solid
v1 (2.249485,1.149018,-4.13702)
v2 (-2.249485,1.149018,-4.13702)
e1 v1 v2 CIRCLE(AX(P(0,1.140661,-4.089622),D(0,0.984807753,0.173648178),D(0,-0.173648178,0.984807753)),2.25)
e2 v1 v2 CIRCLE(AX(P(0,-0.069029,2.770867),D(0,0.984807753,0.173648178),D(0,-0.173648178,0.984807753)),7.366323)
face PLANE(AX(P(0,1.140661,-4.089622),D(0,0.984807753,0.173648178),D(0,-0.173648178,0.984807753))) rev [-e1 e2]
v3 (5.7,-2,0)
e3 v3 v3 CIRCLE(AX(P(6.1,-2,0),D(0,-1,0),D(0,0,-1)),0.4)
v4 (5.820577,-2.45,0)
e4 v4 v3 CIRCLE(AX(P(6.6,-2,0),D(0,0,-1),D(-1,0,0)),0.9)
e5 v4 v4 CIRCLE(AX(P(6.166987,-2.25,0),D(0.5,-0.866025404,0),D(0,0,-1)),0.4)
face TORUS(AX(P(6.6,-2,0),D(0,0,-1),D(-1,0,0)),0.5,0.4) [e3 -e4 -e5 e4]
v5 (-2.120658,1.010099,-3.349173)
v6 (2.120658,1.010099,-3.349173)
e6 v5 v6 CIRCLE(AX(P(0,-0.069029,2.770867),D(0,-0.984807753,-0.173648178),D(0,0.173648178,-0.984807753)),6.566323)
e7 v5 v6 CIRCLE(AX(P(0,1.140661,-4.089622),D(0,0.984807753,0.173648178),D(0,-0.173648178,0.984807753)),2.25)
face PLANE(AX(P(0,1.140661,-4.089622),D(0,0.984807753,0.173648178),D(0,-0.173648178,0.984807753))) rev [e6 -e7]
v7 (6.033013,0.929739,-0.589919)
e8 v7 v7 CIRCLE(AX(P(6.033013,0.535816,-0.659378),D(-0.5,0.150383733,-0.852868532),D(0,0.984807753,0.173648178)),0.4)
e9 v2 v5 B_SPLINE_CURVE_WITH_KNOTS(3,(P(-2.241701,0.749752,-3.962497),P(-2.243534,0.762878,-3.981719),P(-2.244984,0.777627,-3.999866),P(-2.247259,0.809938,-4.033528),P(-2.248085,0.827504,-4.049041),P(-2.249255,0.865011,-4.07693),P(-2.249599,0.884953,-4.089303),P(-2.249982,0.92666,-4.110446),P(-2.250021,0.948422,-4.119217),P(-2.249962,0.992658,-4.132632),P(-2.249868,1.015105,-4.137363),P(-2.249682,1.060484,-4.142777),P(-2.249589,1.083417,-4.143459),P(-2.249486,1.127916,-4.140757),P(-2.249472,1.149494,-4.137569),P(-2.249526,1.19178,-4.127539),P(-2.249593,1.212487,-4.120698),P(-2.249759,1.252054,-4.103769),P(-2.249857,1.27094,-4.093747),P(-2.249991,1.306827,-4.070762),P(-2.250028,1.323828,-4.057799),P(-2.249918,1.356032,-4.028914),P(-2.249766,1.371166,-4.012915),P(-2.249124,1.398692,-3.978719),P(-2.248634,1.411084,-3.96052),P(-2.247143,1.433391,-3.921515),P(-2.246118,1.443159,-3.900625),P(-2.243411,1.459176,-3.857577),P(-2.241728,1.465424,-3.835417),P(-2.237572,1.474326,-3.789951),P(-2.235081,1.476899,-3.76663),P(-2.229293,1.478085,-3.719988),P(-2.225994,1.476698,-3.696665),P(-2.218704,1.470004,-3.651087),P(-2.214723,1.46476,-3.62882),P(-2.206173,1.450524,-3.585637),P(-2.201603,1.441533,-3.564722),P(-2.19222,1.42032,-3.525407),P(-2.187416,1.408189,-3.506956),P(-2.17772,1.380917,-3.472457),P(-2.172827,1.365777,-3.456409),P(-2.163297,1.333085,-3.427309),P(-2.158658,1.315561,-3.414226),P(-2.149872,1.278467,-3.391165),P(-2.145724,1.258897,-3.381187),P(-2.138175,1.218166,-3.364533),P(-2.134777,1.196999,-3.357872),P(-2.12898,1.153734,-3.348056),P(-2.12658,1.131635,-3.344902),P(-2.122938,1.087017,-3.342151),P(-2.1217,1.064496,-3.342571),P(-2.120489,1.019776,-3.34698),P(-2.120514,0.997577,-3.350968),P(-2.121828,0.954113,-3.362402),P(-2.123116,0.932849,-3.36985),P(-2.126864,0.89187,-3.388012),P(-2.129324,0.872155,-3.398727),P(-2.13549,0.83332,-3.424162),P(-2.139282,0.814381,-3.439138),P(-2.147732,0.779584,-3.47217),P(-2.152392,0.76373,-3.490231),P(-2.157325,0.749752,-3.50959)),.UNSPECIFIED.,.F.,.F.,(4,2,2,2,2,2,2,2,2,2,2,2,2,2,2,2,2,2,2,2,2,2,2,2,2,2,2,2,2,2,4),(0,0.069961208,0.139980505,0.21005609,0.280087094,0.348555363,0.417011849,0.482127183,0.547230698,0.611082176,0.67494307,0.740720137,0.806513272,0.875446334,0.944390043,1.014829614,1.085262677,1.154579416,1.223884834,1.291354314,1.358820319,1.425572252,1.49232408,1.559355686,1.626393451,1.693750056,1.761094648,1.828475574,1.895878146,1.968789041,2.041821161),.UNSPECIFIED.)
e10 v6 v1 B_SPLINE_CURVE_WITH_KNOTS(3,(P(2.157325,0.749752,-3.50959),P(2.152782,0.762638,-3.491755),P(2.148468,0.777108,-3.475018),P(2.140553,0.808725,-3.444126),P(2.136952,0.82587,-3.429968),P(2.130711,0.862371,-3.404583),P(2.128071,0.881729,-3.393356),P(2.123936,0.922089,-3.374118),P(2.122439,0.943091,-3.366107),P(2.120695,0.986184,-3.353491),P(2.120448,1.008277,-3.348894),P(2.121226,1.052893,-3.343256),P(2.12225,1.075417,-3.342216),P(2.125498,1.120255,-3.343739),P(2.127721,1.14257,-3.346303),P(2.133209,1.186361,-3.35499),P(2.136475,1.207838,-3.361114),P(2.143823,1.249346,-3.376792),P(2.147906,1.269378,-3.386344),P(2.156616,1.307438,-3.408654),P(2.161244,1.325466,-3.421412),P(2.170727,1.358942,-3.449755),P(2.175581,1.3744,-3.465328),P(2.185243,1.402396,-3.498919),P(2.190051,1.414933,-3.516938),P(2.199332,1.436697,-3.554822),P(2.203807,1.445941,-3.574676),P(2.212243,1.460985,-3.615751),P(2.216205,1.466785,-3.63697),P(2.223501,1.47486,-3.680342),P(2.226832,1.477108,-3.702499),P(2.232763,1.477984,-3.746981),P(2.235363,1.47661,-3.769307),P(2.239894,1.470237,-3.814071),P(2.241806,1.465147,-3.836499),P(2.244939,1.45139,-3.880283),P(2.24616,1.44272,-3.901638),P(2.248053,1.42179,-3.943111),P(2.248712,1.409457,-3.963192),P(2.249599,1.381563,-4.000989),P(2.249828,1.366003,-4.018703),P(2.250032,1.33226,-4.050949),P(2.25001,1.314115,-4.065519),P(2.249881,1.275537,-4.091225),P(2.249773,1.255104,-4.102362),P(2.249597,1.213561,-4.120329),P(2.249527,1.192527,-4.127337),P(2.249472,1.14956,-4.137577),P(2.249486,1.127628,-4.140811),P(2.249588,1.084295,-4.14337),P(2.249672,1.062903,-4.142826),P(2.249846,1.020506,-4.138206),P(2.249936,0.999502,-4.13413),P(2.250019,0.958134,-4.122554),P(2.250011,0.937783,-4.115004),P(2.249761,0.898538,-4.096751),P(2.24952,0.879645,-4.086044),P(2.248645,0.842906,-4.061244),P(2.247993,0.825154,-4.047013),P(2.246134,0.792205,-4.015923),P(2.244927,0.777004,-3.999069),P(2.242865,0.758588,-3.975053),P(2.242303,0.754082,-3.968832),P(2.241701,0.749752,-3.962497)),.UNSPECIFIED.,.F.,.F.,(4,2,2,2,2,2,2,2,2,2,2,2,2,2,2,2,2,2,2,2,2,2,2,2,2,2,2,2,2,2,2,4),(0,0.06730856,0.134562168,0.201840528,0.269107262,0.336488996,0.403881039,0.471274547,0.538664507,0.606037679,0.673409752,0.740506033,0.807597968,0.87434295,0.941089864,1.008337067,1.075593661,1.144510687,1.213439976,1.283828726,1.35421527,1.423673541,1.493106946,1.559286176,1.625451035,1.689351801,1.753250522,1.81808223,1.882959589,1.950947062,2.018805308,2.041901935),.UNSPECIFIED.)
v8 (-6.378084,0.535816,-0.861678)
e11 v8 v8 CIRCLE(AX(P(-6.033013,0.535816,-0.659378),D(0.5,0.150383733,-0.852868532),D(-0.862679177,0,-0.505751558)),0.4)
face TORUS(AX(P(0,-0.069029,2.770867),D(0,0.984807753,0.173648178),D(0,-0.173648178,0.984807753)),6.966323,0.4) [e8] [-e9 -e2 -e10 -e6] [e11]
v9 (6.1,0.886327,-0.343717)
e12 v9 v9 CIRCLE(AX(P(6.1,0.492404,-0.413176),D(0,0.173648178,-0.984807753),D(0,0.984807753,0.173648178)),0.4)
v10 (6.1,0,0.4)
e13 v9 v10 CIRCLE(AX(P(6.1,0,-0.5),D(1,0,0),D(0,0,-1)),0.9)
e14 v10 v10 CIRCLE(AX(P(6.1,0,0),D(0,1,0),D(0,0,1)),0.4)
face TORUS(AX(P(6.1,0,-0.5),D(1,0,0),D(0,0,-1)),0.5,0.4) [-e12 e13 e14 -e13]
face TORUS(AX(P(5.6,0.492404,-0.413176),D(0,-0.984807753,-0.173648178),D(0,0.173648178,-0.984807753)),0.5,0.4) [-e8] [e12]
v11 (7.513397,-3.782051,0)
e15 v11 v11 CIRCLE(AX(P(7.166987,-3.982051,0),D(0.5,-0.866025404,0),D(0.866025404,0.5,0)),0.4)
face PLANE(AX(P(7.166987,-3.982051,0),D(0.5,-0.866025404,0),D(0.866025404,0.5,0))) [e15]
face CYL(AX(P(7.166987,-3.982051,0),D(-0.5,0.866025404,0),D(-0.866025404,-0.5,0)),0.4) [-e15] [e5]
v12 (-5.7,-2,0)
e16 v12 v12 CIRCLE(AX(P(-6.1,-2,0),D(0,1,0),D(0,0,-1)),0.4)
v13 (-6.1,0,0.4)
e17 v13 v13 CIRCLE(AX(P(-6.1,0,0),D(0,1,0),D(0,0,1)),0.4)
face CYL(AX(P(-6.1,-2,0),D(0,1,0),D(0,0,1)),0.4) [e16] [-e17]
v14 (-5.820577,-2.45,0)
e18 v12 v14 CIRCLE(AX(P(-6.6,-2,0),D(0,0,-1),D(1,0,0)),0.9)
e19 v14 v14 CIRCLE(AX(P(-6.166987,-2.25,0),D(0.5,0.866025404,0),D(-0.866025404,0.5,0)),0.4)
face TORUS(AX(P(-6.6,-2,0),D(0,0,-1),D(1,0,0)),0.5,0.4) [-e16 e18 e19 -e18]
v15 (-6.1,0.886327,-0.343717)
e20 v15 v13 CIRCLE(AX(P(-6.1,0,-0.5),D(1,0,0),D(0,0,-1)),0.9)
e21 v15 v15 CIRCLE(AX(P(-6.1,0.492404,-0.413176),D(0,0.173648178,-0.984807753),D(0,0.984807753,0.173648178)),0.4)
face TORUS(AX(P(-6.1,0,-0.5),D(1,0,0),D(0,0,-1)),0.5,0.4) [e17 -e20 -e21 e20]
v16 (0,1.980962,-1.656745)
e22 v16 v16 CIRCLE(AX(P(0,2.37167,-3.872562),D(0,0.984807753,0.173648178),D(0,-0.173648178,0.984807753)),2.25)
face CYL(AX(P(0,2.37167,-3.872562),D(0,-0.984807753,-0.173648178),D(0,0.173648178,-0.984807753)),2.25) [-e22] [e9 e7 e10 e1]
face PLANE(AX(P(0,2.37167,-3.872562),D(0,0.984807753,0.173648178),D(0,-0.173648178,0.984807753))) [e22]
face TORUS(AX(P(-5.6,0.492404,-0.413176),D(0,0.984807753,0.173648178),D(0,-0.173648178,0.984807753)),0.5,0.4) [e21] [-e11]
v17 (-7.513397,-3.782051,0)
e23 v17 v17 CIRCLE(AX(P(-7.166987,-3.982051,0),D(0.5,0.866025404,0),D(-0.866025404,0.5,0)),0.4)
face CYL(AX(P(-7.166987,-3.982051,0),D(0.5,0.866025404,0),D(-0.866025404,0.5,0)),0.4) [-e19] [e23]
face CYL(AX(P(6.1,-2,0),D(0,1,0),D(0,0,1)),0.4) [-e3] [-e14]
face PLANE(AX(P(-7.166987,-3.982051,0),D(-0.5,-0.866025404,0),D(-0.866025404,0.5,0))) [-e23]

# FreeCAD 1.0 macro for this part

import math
import FreeCAD as App
import Part
import Sketcher

doc = App.newDocument("Part")
body = doc.addObject("PartDesign::Body", "Body")

# Sketch on XZ plane
sketch1 = doc.addObject("Sketcher::SketchObject", "Sketch")
body.addObject(sketch1)
sketch1.AttachmentSupport = (doc.XZ_Plane, [""])
sketch1.MapMode = "FlatFace"
sketch1.addGeometry(Part.Circle(App.Vector(-6.1, 0, 0), App.Vector(0, 0, 1), 0.4), False)
sketch1.addConstraint([
    Sketcher.Constraint("PointOnObject", 0, 3, -1),
    Sketcher.Constraint("Diameter", 0, 0.8),
    Sketcher.Constraint("DistanceX", 0, 3, -1, 1, 6.1),
])
pad1 = doc.addObject("PartDesign::Pad", "Pad")
body.addObject(pad1)
pad1.Profile = sketch1
pad1.Length = 2
body2 = doc.addObject("PartDesign::Body", "Body001")

# Sketch on XZ plane
sketch2 = doc.addObject("Sketcher::SketchObject", "Sketch001")
body2.addObject(sketch2)
sketch2.AttachmentSupport = (doc.getObject("XZ_Plane001"), [""])
sketch2.MapMode = "FlatFace"
sketch2.addGeometry(Part.Circle(App.Vector(6.1, 0, 0), App.Vector(0, 0, 1), 0.4), False)
sketch2.addConstraint([
    Sketcher.Constraint("PointOnObject", 0, 3, -1),
    Sketcher.Constraint("Diameter", 0, 0.8),
    Sketcher.Constraint("DistanceX", -1, 1, 0, 3, 6.1),
])
pad2 = doc.addObject("PartDesign::Pad", "Pad001")
body2.addObject(pad2)
pad2.Profile = sketch2
pad2.Length = 2
body.AllowCompound = True
doc.recompute()

boolean = doc.addObject("PartDesign::Boolean", "Boolean")
body.addObject(boolean)
boolean.Type = "Fuse"
boolean.addObjects([body2])

# Sketch on XZ plane
sketch3 = doc.addObject("Sketcher::SketchObject", "Sketch002")
body.addObject(sketch3)
sketch3.AttachmentSupport = (doc.XZ_Plane, [""])
sketch3.MapMode = "FlatFace"
sketch3.addGeometry([
    Part.Circle(App.Vector(6.1, 0, 0), App.Vector(0, 0, 1), 0.4),
    Part.Circle(App.Vector(-6.1, 0, 0), App.Vector(0, 0, 1), 0.4),
], False)
sketch3.addGeometry(Part.LineSegment(App.Vector(6.1, -0.5, 0), App.Vector(-6.1, -0.5, 0)), True)  # axis
sketch3.addConstraint([
    Sketcher.Constraint("Horizontal", 2),
    Sketcher.Constraint("Equal", 0, 1),
    Sketcher.Constraint("Symmetric", 0, 3, 1, 3, -1, 1),
    Sketcher.Constraint("PointOnObject", 0, 3, -1),
    Sketcher.Constraint("Vertical", 0, 3, 2, 1),
    Sketcher.Constraint("Vertical", 1, 3, 2, 2),
    Sketcher.Constraint("Diameter", 0, 0.8),
    Sketcher.Constraint("DistanceX", 2, 2, 2, 1, 12.2),
    Sketcher.Constraint("DistanceY", 2, 1, -1, 1, 0.5),
])
revolution = doc.addObject("PartDesign::Revolution", "Revolution")
body.addObject(revolution)
revolution.Profile = sketch3
revolution.ReferenceAxis = (sketch3, ["Axis0"])
revolution.Angle = 80

# Sketch on an angled plane
sketch4 = doc.addObject("Sketcher::SketchObject", "Sketch003")
body.addObject(sketch4)
sketch4.Placement = App.Placement(App.Vector(0, 0.085505, -0.484923), App.Rotation(App.Vector(-1, 0, 0), App.Vector(0, 0.984807753, 0.173648178), App.Vector(0, 0.173648178, -0.984807753), "ZXY"))
sketch4.addGeometry(Part.Circle(App.Vector(-6.1, 0.41, 0), App.Vector(0, 0, 1), 0.4), False)
sketch4.addGeometry(Part.LineSegment(App.Vector(-5.6, 0.41, 0), App.Vector(-5.6, 10.41, 0)), True)  # axis
sketch4.addConstraint([
    Sketcher.Constraint("Vertical", 1),
    Sketcher.Constraint("Horizontal", 0, 3, 1, 1),
    Sketcher.Constraint("Diameter", 0, 0.8),
    Sketcher.Constraint("DistanceY", 1, 1, 1, 2, 10.0),
    Sketcher.Constraint("DistanceX", 0, 3, -1, 1, 6.1),
    Sketcher.Constraint("DistanceX", 1, 1, -1, 1, 5.6),
    Sketcher.Constraint("DistanceY", -1, 1, 0, 3, 0.413176),
])
revolution2 = doc.addObject("PartDesign::Revolution", "Revolution001")
body.addObject(revolution2)
revolution2.Profile = sketch4
revolution2.ReferenceAxis = (sketch4, ["Axis0"])
revolution2.Angle = 30

# Sketch on an angled plane
sketch5 = doc.addObject("Sketcher::SketchObject", "Sketch004")
body.addObject(sketch5)
sketch5.Placement = App.Placement(App.Vector(0, 0.085505, -0.484923), App.Rotation(App.Vector(-1, 0, 0), App.Vector(0, 0.984807753, 0.173648178), App.Vector(0, 0.173648178, -0.984807753), "ZXY"))
sketch5.addGeometry(Part.Circle(App.Vector(6.1, 0.41, 0), App.Vector(0, 0, 1), 0.4), False)
sketch5.addGeometry(Part.LineSegment(App.Vector(5.6, 0.41, 0), App.Vector(5.6, -9.59, 0)), True)  # axis
sketch5.addConstraint([
    Sketcher.Constraint("Vertical", 1),
    Sketcher.Constraint("Horizontal", 0, 3, 1, 1),
    Sketcher.Constraint("Diameter", 0, 0.8),
    Sketcher.Constraint("DistanceY", 1, 2, 1, 1, 10.0),
    Sketcher.Constraint("DistanceX", -1, 1, 0, 3, 6.1),
    Sketcher.Constraint("DistanceX", -1, 1, 1, 1, 5.6),
    Sketcher.Constraint("DistanceY", -1, 1, 0, 3, 0.413176),
])
revolution3 = doc.addObject("PartDesign::Revolution", "Revolution002")
body.addObject(revolution3)
revolution3.Profile = sketch5
revolution3.ReferenceAxis = (sketch5, ["Axis0"])
revolution3.Angle = 30

# Sketch on an angled plane
sketch6 = doc.addObject("Sketcher::SketchObject", "Sketch005")
body.addObject(sketch6)
sketch6.Placement = App.Placement(App.Vector(-1.186783, -0.356946, 2.02434), App.Rotation(App.Vector(-0.840293646, -0.154034619, -0.519788346), App.Vector(-0.209538991, 0.976554181, 0.049349186), App.Vector(0.5, 0.150383733, -0.852868532), "ZXY"))
sketch6.addGeometry(Part.Circle(App.Vector(5.33, 1.75, 0), App.Vector(0, 0, 1), 0.4), False)
sketch6.addConstraint([
    Sketcher.Constraint("Diameter", 0, 0.8),
    Sketcher.Constraint("DistanceX", -1, 1, 0, 3, 5.329705),
    Sketcher.Constraint("DistanceY", -1, 1, 0, 3, 1.754865),
])

# Sketch on an angled plane
sketch7 = doc.addObject("Sketcher::SketchObject", "Sketch006")
body.addObject(sketch7)
sketch7.Placement = App.Placement(App.Vector(0, 0.406899, 0.071747), App.Rotation(App.Vector(0, 0.173648178, -0.984807753), App.Vector(1, 0, 0), App.Vector(0, -0.984807753, -0.173648178), "ZXY"))
sketch7.addGeometry(Part.ArcOfCircle(Part.Circle(App.Vector(-3, 0, 0), App.Vector(0, 0, 1), 7), math.radians(-60), math.radians(60)), False)
sketch7.addConstraint([
    Sketcher.Constraint("Symmetric", 0, 1, 0, 2, -1),
    Sketcher.Constraint("Radius", 0, 6.966323),
    Sketcher.Constraint("DistanceX", 0, 3, 0, 1, 3.483162),
    Sketcher.Constraint("DistanceX", 0, 3, -1, 1, 2.740758),
])
doc.recompute()

additivepipe = doc.addObject("PartDesign::AdditivePipe", "AdditivePipe")
body.addObject(additivepipe)
additivepipe.Profile = sketch6
additivepipe.Spine = (sketch7, ["Edge1"])

# Sketch on an angled plane
sketch8 = doc.addObject("Sketcher::SketchObject", "Sketch007")
body.addObject(sketch8)
sketch8.Placement = App.Placement(App.Vector(0, 0.406899, 0.071747), App.Rotation(App.Vector(1, 0, 0), App.Vector(0, 0.173648178, -0.984807753), App.Vector(0, 0.984807753, 0.173648178), "ZXY"))
sketch8.addGeometry(Part.Circle(App.Vector(0, 4.2, 0), App.Vector(0, 0, 1), 2.2), False)
sketch8.addConstraint([
    Sketcher.Constraint("PointOnObject", 0, 3, -2),
    Sketcher.Constraint("Diameter", 0, 4.5),
    Sketcher.Constraint("DistanceY", -1, 1, 0, 3, 4.225565),
])
pad3 = doc.addObject("PartDesign::Pad", "Pad002")
body.addObject(pad3)
pad3.Profile = sketch8
pad3.Length = 1.25

# Sketch on XZ plane
sketch9 = doc.addObject("Sketcher::SketchObject", "Sketch008")
body.addObject(sketch9)
sketch9.AttachmentSupport = (doc.XZ_Plane, [""])
sketch9.MapMode = "FlatFace"
sketch9.AttachmentOffset = App.Placement(App.Vector(0, 0, 2), App.Rotation())
sketch9.addGeometry(Part.Circle(App.Vector(6.1, 0, 0), App.Vector(0, 0, 1), 0.4), False)
sketch9.addGeometry(Part.LineSegment(App.Vector(6.6, 0, 0), App.Vector(6.6, 10, 0)), True)  # axis
sketch9.addConstraint([
    Sketcher.Constraint("Vertical", 1),
    Sketcher.Constraint("PointOnObject", 0, 3, -1),
    Sketcher.Constraint("PointOnObject", 1, 1, -1),
    Sketcher.Constraint("Diameter", 0, 0.8),
    Sketcher.Constraint("DistanceY", 1, 1, 1, 2, 10.0),
    Sketcher.Constraint("DistanceX", -1, 1, 0, 3, 6.1),
    Sketcher.Constraint("DistanceX", -1, 1, 1, 1, 6.6),
])
revolution4 = doc.addObject("PartDesign::Revolution", "Revolution003")
body.addObject(revolution4)
revolution4.Profile = sketch9
revolution4.ReferenceAxis = (sketch9, ["Axis0"])
revolution4.Angle = 30

# Sketch on an angled plane
sketch10 = doc.addObject("Sketcher::SketchObject", "Sketch009")
body.addObject(sketch10)
sketch10.Placement = App.Placement(App.Vector(2.516025, -4.357884, 0), App.Rotation(App.Vector(0.866025404, 0.5, 0), App.Vector(0, 0, 1), App.Vector(0.5, -0.866025404, 0), "ZXY"))
sketch10.addGeometry(Part.Circle(App.Vector(4.22, 0, 0), App.Vector(0, 0, 1), 0.4), False)
sketch10.addConstraint([
    Sketcher.Constraint("PointOnObject", 0, 3, -1),
    Sketcher.Constraint("Diameter", 0, 0.8),
    Sketcher.Constraint("DistanceX", -1, 1, 0, 3, 4.215768),
])
pad4 = doc.addObject("PartDesign::Pad", "Pad003")
body.addObject(pad4)
pad4.Profile = sketch10
pad4.Length = 2
doc.recompute()

mirrored = doc.addObject("PartDesign::Mirrored", "Mirrored")
body.addObject(mirrored)
mirrored.Originals = [revolution4, pad4]
mirrored.MirrorPlane = (doc.YZ_Plane, [""])
body.Tip = mirrored

doc.recompute()
